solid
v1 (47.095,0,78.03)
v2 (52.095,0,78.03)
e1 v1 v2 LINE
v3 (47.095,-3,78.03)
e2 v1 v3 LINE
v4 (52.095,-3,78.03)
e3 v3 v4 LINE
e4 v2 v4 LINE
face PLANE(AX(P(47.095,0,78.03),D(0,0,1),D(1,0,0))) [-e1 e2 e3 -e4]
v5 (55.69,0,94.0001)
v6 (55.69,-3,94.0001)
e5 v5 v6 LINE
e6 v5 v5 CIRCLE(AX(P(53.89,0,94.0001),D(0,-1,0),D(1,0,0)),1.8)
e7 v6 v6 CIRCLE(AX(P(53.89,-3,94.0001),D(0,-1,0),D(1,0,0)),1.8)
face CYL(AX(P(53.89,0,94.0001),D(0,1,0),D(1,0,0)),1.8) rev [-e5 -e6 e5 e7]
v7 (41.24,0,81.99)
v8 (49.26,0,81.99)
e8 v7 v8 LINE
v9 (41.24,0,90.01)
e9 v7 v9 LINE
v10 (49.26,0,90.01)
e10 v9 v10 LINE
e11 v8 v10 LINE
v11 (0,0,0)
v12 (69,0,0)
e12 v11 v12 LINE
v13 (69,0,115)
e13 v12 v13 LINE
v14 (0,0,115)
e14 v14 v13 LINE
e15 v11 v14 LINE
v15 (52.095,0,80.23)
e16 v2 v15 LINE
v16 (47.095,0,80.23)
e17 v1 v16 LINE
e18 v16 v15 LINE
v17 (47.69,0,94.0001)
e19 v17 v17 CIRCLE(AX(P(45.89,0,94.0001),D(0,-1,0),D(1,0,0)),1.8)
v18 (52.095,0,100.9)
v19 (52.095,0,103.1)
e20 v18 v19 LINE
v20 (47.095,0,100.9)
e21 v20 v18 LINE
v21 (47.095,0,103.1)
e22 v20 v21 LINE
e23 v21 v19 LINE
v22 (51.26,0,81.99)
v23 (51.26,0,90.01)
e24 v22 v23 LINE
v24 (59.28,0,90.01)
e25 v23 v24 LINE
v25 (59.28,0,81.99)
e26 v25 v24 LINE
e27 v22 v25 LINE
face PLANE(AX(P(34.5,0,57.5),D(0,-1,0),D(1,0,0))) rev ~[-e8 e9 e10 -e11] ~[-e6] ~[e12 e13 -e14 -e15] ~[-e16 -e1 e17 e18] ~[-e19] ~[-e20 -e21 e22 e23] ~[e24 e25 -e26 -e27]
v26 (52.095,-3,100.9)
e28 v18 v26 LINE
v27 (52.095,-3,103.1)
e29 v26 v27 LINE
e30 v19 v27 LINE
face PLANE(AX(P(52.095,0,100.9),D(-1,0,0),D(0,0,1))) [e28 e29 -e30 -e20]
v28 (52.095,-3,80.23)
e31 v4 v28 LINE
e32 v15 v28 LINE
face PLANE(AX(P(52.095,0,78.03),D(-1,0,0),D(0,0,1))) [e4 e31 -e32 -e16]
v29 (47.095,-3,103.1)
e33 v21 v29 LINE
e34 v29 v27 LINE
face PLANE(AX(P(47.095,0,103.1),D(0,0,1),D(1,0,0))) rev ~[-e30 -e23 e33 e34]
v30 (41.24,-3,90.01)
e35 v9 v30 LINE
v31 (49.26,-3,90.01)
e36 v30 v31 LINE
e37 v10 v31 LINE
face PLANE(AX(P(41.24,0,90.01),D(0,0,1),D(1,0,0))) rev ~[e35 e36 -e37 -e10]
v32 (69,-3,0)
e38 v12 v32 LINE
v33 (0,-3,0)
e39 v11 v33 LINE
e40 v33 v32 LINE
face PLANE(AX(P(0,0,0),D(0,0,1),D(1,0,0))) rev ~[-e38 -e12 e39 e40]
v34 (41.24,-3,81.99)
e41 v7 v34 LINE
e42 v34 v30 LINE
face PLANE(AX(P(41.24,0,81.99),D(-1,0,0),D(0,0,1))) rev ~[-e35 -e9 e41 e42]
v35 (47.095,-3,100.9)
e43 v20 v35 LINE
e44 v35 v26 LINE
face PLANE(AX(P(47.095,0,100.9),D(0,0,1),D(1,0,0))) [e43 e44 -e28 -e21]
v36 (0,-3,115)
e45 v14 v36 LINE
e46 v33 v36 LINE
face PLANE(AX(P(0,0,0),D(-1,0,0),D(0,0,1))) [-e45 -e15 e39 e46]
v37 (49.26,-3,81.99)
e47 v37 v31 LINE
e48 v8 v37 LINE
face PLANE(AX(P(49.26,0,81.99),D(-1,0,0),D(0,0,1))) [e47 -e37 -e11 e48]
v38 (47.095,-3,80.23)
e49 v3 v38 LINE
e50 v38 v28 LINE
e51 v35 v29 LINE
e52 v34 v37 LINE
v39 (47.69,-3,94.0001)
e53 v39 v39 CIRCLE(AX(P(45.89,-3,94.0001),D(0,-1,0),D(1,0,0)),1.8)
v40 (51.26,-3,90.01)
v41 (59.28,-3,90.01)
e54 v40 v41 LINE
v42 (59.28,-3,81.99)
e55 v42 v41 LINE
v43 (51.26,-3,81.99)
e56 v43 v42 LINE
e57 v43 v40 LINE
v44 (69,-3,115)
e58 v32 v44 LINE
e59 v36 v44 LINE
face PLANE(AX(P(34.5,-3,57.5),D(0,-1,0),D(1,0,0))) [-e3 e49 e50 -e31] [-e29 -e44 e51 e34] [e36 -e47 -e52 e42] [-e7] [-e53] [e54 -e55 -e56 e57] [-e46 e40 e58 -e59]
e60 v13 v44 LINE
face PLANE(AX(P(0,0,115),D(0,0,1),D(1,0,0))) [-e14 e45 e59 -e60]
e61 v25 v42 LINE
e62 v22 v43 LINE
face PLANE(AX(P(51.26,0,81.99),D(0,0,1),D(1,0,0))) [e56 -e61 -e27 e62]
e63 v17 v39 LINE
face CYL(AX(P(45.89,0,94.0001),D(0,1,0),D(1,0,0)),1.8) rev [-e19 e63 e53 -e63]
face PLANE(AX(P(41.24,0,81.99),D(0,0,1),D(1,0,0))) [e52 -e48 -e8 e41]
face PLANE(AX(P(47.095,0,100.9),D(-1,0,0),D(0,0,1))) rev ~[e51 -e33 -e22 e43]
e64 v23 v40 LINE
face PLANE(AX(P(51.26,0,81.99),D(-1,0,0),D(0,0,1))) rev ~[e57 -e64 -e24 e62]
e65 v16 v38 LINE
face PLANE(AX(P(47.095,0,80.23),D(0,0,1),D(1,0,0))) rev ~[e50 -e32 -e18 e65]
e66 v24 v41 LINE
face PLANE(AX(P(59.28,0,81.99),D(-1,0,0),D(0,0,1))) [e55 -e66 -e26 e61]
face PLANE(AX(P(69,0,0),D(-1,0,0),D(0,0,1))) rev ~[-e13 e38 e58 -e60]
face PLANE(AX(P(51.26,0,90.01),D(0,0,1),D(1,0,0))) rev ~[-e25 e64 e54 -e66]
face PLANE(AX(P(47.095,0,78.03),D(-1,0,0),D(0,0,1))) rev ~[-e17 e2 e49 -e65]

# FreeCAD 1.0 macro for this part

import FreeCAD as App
import Part
import Sketcher
from FreeCAD import Vector
Q = App.Units.Quantity


def add_polygon(sketch, points):
    """Adds a closed chain of lines whose ends are joined by coincident constraints."""
    first, n = sketch.GeometryCount, len(points)
    for a, b in zip(points, points[1:] + points[:1]):
        sketch.addGeometry(Part.LineSegment(App.Vector(*a, 0), App.Vector(*b, 0)), False)
    for i in range(n):
        sketch.addConstraint(Sketcher.Constraint("Coincident", first + i, 2, first + (i + 1) % n, 1))

doc = App.newDocument("Part")
params = doc.addObject("Spreadsheet::Sheet", "Params")
for row, (alias, value) in enumerate([
    ("sketch1_diameter", "3.6 mm"),
    ("sketch1_width", "69 mm"),
    ("sketch1_width2", "5 mm"),
    ("sketch1_height", "115 mm"),
    ("sketch1_height2", "2.2 mm"),
    ("pad1_length", "3 mm"),
], start=1):
    params.set(f"A{row}", alias)
    params.set(f"B{row}", "=" + value)
    params.setAlias(f"B{row}", alias)

body = doc.addObject("PartDesign::Body", "Body")

# Sketch on XZ plane
sketch1 = body.newObject("Sketcher::SketchObject", "Sketch")
sketch1.AttachmentSupport = (doc.getObject("XZ_Plane"), [""])
sketch1.MapMode = "FlatFace"
add_polygon(sketch1, [(0, 115), (0, 0), (69, 0), (69, 115)])  # lines 0-3
add_polygon(sketch1, [(52.1, 78), (47.1, 78), (47.1, 80.2), (52.1, 80.2)])  # lines 4-7
add_polygon(sketch1, [(49.3, 82), (41.2, 82), (41.2, 90), (49.3, 90)])  # lines 8-11
add_polygon(sketch1, [(59.3, 82), (51.3, 82), (51.3, 90), (59.3, 90)])  # lines 12-15
sketch1.addGeometry(Part.Circle(Vector(45.9, 94, 0), Vector(0, 0, 1), 1.8), False)  # 16
add_polygon(sketch1, [(52.1, 100.9), (47.1, 100.9), (47.1, 103.1), (52.1, 103.1)])  # lines 17-20
sketch1.addGeometry(Part.Circle(Vector(53.9, 94, 0), Vector(0, 0, 1), 1.8), False)  # 21
sketch1.addConstraint([
    Sketcher.Constraint("Vertical", 0),
    Sketcher.Constraint("Horizontal", 1),
    Sketcher.Constraint("Vertical", 2),
    Sketcher.Constraint("Horizontal", 3),
    Sketcher.Constraint("Horizontal", 4),
    Sketcher.Constraint("Vertical", 5),
    Sketcher.Constraint("Horizontal", 6),
    Sketcher.Constraint("Vertical", 7),
    Sketcher.Constraint("Horizontal", 8),
    Sketcher.Constraint("Vertical", 9),
    Sketcher.Constraint("Horizontal", 10),
    Sketcher.Constraint("Vertical", 11),
    Sketcher.Constraint("Horizontal", 12),
    Sketcher.Constraint("Vertical", 13),
    Sketcher.Constraint("Horizontal", 14),
    Sketcher.Constraint("Vertical", 15),
    Sketcher.Constraint("Horizontal", 17),
    Sketcher.Constraint("Vertical", 18),
    Sketcher.Constraint("Horizontal", 19),
    Sketcher.Constraint("Vertical", 20),
    Sketcher.Constraint("Coincident", 0, 2, -1, 1),
    Sketcher.Constraint("Equal", 16, 21),
    Sketcher.Constraint("Horizontal", 16, 3, 21, 3),
    Sketcher.Constraint("Horizontal", 11, 2, 12, 2),
    Sketcher.Constraint("Horizontal", 10, 2, 13, 2),
    Sketcher.Constraint("Vertical", 5, 2, 17, 2),
    Sketcher.Constraint("Vertical", 7, 2, 19, 2),
    Sketcher.Constraint("Equal", 10, 12),
    Sketcher.Constraint("Equal", 14, 9),
    Sketcher.Constraint("Equal", 7, 18),
    Sketcher.Constraint("Diameter", 16, Q("3.6 mm")),
    Sketcher.Constraint("DistanceX", 1, 1, 1, 2, Q("69 mm")),
    Sketcher.Constraint("DistanceX", 4, 2, 4, 1, Q("5 mm")),
    Sketcher.Constraint("DistanceY", 0, 2, 0, 1, Q("115 mm")),
    Sketcher.Constraint("DistanceY", 5, 1, 5, 2, Q("2.2 mm")),
    Sketcher.Constraint("DistanceX", 16, 3, 21, 3, Q("8 mm")),
    Sketcher.Constraint("DistanceX", 11, 2, 12, 2, Q("2 mm")),
    Sketcher.Constraint("DistanceX", 8, 2, 8, 1, Q("8.02 mm")),
    Sketcher.Constraint("DistanceY", -1, 1, 17, 2, Q("100.9 mm")),
    Sketcher.Constraint("DistanceX", -1, 1, 16, 3, Q("45.89 mm")),
    Sketcher.Constraint("DistanceY", -1, 1, 4, 2, Q("78.03 mm")),
    Sketcher.Constraint("DistanceX", -1, 1, 8, 2, Q("41.24 mm")),
    Sketcher.Constraint("DistanceY", -1, 1, 8, 2, Q("81.99 mm")),
    Sketcher.Constraint("DistanceX", -1, 1, 4, 2, Q("47.095 mm")),
    Sketcher.Constraint("DistanceY", -1, 1, 16, 3, Q("94.0001 mm")),
])
sketch1.setExpression("Constraints[50]", "Params.sketch1_diameter")
sketch1.setExpression("Constraints[51]", "Params.sketch1_width")
sketch1.setExpression("Constraints[52]", "Params.sketch1_width2")
sketch1.setExpression("Constraints[53]", "Params.sketch1_height")
sketch1.setExpression("Constraints[54]", "Params.sketch1_height2")
pad1 = body.newObject("PartDesign::Pad", "Pad")
pad1.Profile = sketch1
pad1.setExpression("Length", "Params.pad1_length")

doc.recompute()
